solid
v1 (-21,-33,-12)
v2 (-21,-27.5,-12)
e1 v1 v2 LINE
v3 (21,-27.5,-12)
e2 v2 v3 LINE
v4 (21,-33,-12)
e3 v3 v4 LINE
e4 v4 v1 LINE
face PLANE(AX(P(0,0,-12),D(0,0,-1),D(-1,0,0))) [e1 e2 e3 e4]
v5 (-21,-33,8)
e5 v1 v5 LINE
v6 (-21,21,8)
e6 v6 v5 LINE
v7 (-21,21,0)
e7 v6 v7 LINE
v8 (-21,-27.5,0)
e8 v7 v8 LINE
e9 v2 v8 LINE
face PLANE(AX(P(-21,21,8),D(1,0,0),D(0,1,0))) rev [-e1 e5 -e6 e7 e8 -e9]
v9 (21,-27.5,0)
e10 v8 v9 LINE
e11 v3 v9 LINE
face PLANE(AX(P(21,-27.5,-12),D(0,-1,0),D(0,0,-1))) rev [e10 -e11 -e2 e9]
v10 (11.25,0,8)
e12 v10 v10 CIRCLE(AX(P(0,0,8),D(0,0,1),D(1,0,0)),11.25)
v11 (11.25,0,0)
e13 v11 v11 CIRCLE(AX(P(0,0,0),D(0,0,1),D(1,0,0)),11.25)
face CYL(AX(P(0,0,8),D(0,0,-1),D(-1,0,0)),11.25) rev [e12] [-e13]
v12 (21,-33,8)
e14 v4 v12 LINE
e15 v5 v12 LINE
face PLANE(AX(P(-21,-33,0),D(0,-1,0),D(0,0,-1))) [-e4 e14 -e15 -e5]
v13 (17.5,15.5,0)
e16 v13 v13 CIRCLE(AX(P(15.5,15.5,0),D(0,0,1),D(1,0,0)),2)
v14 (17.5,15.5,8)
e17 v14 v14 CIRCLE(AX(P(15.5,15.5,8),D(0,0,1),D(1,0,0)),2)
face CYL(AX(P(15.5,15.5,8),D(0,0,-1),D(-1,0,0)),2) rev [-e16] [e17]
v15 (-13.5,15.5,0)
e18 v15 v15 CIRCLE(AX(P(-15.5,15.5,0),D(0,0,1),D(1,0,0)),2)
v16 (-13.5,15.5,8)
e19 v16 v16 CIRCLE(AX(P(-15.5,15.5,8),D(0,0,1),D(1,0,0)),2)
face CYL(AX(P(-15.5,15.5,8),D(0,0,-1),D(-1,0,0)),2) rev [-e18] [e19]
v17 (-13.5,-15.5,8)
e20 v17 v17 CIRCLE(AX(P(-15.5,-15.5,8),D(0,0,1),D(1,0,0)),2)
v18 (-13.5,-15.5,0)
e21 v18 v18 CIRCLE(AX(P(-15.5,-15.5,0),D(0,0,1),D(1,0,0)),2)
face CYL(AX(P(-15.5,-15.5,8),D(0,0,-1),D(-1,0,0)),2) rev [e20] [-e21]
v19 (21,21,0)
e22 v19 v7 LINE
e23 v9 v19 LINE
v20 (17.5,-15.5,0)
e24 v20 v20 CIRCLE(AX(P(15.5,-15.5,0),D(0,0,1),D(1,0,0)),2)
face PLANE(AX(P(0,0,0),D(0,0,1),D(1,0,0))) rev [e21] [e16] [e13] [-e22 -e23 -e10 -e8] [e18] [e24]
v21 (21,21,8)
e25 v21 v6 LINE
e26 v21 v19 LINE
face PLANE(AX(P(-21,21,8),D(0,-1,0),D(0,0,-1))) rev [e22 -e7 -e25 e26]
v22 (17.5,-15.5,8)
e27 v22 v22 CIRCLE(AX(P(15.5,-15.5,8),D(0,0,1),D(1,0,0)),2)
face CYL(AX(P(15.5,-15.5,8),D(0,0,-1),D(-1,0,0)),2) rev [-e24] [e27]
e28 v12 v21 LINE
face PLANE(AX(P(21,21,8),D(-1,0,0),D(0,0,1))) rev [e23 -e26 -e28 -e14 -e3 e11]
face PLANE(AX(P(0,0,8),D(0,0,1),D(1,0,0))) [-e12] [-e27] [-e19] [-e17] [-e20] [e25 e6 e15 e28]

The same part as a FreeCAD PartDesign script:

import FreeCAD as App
import Part
import Sketcher

V = App.Vector


def add_polygon(sketch, points):
    """Adds a closed chain of lines whose ends are joined by coincident constraints."""
    first, n = sketch.GeometryCount, len(points)
    for a, b in zip(points, points[1:] + points[:1]):
        sketch.addGeometry(Part.LineSegment(App.Vector(*a, 0), App.Vector(*b, 0)), False)
    for i in range(n):
        sketch.addConstraint(Sketcher.Constraint("Coincident", first + i, 2, first + (i + 1) % n, 1))

doc = App.newDocument("Part")
body = doc.addObject("PartDesign::Body", "Body")

# Sketch on XY plane
sketch1 = doc.addObject("Sketcher::SketchObject", "Sketch")
body.addObject(sketch1)
sketch1.AttachmentSupport = (doc.XY_Plane, [""])
sketch1.MapMode = "FlatFace"
add_polygon(sketch1, [(-21, 21), (-21, -21), (21, -21), (21, 21)])  # lines 0-3
sketch1.addGeometry(Part.Circle(V(-15.5, -15.5, 0), V(0, 0, 1), 2), False)  # 4
sketch1.addGeometry(Part.Circle(V(15.5, -15.5, 0), V(0, 0, 1), 2), False)  # 5
sketch1.addGeometry(Part.Circle(V(-15.5, 15.5, 0), V(0, 0, 1), 2), False)  # 6
sketch1.addGeometry(Part.Circle(V(0, 0, 0), V(0, 0, 1), 11.2), False)  # 7
sketch1.addGeometry(Part.Circle(V(15.5, 15.5, 0), V(0, 0, 1), 2), False)  # 8
sketch1.addConstraint([
    Sketcher.Constraint("Vertical", 0),
    Sketcher.Constraint("Horizontal", 1),
    Sketcher.Constraint("Vertical", 2),
    Sketcher.Constraint("Horizontal", 3),
    Sketcher.Constraint("Coincident", 7, 3, -1, 1),
    Sketcher.Constraint("Equal", 4, 5),
    Sketcher.Constraint("Equal", 5, 6),
    Sketcher.Constraint("Equal", 6, 8),
    Sketcher.Constraint("Symmetric", 5, 3, 6, 3, -1, 1),
    Sketcher.Constraint("Symmetric", 4, 3, 8, 3, -1, 1),
    Sketcher.Constraint("Symmetric", 0, 2, 2, 2, -1, 1),
    Sketcher.Constraint("Symmetric", 4, 3, 5, 3, -2),
    Sketcher.Constraint("Equal", 3, 0),
    Sketcher.Constraint("Diameter", 4, 4.0),
    Sketcher.Constraint("Diameter", 7, 22.5),
    Sketcher.Constraint("DistanceX", 1, 1, 1, 2, 42.0),
    Sketcher.Constraint("DistanceX", 4, 3, 5, 3, 31.0),
    Sketcher.Constraint("DistanceY", 4, 3, 6, 3, 31.0),
])
pad1 = doc.addObject("PartDesign::Pad", "Pad")
body.addObject(pad1)
pad1.Profile = sketch1
pad1.Length = 8

# Sketch on XY plane
sketch2 = doc.addObject("Sketcher::SketchObject", "Sketch001")
body.addObject(sketch2)
sketch2.AttachmentSupport = (doc.XY_Plane, [""])
sketch2.MapMode = "FlatFace"
sketch2.AttachmentOffset = App.Placement(V(0, 0, 8), App.Rotation())
add_polygon(sketch2, [(-21, -21), (-21, -33), (21, -33), (21, -21)])  # lines 0-3
sketch2.addConstraint([
    Sketcher.Constraint("Vertical", 0),
    Sketcher.Constraint("Horizontal", 1),
    Sketcher.Constraint("Vertical", 2),
    Sketcher.Constraint("Horizontal", 3),
    Sketcher.Constraint("DistanceX", 1, 1, 1, 2, 42.0),
    Sketcher.Constraint("DistanceY", 0, 2, 0, 1, 12.0),
    Sketcher.Constraint("DistanceX", 0, 2, -1, 1, 21.0),
    Sketcher.Constraint("DistanceY", 0, 2, -1, 1, 33.0),
])
pad2 = doc.addObject("PartDesign::Pad", "Pad001")
body.addObject(pad2)
pad2.Profile = sketch2
pad2.Length = 8
pad2.Reversed = True

# Sketch on XY plane
sketch3 = doc.addObject("Sketcher::SketchObject", "Sketch002")
body.addObject(sketch3)
sketch3.AttachmentSupport = (doc.XY_Plane, [""])
sketch3.MapMode = "FlatFace"
add_polygon(sketch3, [(21, -28), (21, -33), (-21, -33), (-21, -28)])  # lines 0-3
sketch3.addConstraint([
    Sketcher.Constraint("Vertical", 0),
    Sketcher.Constraint("Horizontal", 1),
    Sketcher.Constraint("Vertical", 2),
    Sketcher.Constraint("Horizontal", 3),
    Sketcher.Constraint("DistanceX", 1, 2, 1, 1, 42.0),
    Sketcher.Constraint("DistanceY", 0, 2, 0, 1, 5.5),
    Sketcher.Constraint("DistanceX", -1, 1, 0, 2, 21.0),
    Sketcher.Constraint("DistanceY", 0, 2, -1, 1, 33.0),
])
pad3 = doc.addObject("PartDesign::Pad", "Pad002")
body.addObject(pad3)
pad3.Profile = sketch3
pad3.Length = 12
pad3.Reversed = True

doc.recompute()
